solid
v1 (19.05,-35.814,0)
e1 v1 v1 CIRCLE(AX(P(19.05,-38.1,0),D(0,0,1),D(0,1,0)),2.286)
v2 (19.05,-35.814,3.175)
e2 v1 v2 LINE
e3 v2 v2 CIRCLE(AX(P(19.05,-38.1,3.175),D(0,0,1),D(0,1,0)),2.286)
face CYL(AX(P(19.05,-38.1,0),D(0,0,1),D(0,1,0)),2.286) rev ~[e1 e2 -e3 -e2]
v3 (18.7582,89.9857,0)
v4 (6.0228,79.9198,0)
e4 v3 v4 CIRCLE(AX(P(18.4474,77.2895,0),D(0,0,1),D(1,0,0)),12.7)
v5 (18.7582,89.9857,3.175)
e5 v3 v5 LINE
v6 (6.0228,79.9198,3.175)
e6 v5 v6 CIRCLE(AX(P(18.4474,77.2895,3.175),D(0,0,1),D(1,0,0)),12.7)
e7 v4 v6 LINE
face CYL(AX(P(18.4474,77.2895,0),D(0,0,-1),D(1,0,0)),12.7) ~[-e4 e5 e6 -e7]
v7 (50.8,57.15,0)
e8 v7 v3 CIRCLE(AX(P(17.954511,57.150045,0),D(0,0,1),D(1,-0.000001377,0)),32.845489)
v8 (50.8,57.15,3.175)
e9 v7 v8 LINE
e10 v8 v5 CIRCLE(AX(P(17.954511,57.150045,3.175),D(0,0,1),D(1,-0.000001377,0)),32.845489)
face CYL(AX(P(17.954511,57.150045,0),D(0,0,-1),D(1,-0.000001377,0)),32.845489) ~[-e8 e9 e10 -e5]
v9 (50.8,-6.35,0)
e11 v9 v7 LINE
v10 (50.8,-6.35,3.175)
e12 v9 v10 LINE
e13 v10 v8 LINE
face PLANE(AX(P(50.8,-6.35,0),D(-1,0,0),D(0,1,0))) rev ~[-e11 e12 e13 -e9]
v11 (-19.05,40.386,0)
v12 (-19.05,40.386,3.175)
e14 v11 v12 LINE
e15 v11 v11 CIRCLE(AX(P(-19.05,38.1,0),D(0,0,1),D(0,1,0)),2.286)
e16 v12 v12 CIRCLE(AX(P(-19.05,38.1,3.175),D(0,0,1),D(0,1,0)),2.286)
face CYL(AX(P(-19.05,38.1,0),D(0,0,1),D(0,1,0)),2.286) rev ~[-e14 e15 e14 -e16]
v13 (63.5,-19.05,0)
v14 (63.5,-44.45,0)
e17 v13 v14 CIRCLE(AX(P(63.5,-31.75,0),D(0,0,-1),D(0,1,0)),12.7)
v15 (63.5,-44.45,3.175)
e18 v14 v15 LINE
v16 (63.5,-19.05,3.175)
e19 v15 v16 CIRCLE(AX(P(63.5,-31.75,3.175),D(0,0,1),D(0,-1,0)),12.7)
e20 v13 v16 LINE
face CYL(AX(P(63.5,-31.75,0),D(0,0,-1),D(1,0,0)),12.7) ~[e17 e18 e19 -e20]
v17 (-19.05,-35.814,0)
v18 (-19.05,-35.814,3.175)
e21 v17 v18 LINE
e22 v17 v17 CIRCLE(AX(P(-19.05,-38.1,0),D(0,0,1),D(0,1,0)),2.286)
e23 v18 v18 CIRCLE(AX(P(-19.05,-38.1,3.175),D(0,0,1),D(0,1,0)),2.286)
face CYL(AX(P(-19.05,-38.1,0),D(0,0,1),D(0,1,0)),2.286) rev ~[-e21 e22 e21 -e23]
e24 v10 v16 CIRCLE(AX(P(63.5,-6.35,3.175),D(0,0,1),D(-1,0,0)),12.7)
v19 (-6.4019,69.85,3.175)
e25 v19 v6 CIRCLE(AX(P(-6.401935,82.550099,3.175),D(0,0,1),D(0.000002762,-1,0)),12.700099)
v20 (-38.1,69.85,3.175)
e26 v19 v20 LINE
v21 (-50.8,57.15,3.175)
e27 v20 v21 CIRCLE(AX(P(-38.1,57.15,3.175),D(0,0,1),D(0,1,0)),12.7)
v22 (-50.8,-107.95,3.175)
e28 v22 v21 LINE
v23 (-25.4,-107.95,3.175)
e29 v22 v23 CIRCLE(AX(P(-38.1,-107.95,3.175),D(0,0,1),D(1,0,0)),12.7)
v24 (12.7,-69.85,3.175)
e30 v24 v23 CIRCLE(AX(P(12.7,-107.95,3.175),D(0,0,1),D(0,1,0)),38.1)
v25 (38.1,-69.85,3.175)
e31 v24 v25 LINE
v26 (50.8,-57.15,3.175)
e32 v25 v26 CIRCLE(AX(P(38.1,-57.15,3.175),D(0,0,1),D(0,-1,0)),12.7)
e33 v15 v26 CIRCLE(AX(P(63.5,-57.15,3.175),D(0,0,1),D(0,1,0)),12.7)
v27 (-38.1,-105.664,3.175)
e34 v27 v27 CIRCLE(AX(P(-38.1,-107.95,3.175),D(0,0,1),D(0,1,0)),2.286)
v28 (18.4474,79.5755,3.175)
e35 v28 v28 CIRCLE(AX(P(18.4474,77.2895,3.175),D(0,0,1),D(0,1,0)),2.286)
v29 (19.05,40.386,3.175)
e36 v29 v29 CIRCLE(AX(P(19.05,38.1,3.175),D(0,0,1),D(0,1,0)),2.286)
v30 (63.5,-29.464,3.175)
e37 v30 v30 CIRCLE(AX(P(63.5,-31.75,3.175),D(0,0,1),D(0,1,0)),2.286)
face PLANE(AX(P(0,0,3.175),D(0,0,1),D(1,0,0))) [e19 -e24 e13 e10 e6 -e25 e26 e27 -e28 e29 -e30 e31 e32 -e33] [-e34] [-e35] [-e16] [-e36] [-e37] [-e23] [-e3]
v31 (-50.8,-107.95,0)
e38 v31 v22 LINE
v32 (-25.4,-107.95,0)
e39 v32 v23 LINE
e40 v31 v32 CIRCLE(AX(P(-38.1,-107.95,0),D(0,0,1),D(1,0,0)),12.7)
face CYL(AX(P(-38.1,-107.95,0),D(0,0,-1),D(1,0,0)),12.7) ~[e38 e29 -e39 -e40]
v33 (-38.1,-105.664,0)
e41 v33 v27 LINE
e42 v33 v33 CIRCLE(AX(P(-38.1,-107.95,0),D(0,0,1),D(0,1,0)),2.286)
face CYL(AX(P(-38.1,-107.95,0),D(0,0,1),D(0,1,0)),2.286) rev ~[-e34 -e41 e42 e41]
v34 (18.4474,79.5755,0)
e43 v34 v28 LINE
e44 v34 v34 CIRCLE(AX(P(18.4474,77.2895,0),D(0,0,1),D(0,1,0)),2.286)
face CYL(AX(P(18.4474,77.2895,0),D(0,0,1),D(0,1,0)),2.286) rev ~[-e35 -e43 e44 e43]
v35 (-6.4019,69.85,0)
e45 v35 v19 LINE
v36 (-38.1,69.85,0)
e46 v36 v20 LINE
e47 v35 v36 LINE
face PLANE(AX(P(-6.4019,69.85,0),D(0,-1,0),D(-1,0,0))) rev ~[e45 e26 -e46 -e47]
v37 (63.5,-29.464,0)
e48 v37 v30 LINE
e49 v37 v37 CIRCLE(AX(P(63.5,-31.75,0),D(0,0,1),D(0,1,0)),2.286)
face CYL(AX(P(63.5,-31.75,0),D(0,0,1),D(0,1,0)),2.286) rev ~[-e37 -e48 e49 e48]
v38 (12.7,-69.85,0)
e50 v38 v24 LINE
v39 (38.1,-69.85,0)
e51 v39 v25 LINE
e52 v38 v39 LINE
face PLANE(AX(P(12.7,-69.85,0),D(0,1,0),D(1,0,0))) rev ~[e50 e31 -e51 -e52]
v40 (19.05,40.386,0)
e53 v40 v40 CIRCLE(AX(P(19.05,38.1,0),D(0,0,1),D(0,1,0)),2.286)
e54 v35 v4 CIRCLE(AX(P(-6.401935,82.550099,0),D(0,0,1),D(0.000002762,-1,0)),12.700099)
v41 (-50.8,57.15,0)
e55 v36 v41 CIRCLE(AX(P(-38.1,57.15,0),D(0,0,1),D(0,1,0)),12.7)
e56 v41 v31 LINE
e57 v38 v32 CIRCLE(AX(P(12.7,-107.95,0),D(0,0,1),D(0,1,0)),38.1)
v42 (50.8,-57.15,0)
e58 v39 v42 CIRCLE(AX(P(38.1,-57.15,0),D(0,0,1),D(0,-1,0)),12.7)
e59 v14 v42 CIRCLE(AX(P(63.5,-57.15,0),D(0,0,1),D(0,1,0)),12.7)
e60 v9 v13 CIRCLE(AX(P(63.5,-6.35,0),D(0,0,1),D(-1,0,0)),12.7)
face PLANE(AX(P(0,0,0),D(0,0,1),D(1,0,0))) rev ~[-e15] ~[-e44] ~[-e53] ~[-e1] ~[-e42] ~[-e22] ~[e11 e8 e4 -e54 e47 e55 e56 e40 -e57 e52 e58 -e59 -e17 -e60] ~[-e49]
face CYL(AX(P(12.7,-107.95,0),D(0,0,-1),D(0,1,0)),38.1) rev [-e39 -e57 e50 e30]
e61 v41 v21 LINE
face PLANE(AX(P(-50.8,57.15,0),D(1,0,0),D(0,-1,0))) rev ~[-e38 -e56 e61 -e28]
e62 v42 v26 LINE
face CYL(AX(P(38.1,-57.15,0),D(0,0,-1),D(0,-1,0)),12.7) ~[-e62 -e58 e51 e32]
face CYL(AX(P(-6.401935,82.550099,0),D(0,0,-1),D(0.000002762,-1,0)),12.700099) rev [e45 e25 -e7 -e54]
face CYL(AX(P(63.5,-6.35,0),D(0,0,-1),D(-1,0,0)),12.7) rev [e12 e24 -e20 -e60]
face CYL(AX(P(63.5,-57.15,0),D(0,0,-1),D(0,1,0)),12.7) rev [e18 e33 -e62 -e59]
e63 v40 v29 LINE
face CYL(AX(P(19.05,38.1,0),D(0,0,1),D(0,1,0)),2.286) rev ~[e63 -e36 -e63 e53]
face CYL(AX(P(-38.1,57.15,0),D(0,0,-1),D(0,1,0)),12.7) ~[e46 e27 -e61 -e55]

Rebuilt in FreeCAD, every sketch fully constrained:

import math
import FreeCAD as App
import Part
import Sketcher

V = App.Vector
Q = App.Units.Quantity

doc = App.newDocument("Part")
body = doc.addObject("PartDesign::Body", "Body")

sketch1 = doc.addObject("Sketcher::SketchObject", "Sketch")
body.addObject(sketch1)
sketch1.AttachmentSupport = (doc.XY_Plane, [""])
sketch1.MapMode = "FlatFace"
sketch1.addGeometry(Part.LineSegment(V(-51, 57, 0), V(-51, -108, 0)), False)
sketch1.addGeometry(Part.ArcOfCircle(Part.Circle(V(-38, -108, 0), V(0, 0, 1), 13), math.radians(180), math.radians(360)), False)
sketch1.addGeometry(Part.ArcOfCircle(Part.Circle(V(13, -108, 0), V(0, 0, 1), 38), math.radians(90), math.radians(180)), False)
sketch1.addGeometry(Part.LineSegment(V(13, -70, 0), V(38, -70, 0)), False)
sketch1.addGeometry(Part.ArcOfCircle(Part.Circle(V(38, -57, 0), V(0, 0, 1), 13), math.radians(-90), math.radians(0)), False)
sketch1.addGeometry(Part.ArcOfCircle(Part.Circle(V(64, -57, 0), V(0, 0, 1), 13), math.radians(90), math.radians(180)), False)
sketch1.addGeometry(Part.ArcOfCircle(Part.Circle(V(64, -32, 0), V(0, 0, 1), 13), math.radians(-90), math.radians(90)), False)
sketch1.addGeometry(Part.ArcOfCircle(Part.Circle(V(64, -6, 0), V(0, 0, 1), 13), math.radians(180), math.radians(270)), False)
sketch1.addGeometry(Part.LineSegment(V(51, -6, 0), V(51, 57, 0)), False)
sketch1.addGeometry(Part.ArcOfCircle(Part.Circle(V(18, 57, 0), V(0, 0, 1), 33), math.radians(0), math.radians(89)), False)
sketch1.addGeometry(Part.ArcOfCircle(Part.Circle(V(18, 77, 0), V(0, 0, 1), 13), math.radians(89), math.radians(168)), False)
sketch1.addGeometry(Part.ArcOfCircle(Part.Circle(V(-6, 83, 0), V(0, 0, 1), 13), math.radians(-90), math.radians(-12)), False)
sketch1.addGeometry(Part.LineSegment(V(-6, 70, 0), V(-38, 70, 0)), False)
sketch1.addGeometry(Part.ArcOfCircle(Part.Circle(V(-38, 57, 0), V(0, 0, 1), 13), math.radians(90), math.radians(180)), False)
sketch1.addConstraint(Sketcher.Constraint("Tangent", 0, 2, 1, 1))
sketch1.addConstraint(Sketcher.Constraint("Tangent", 1, 2, 2, 2))
sketch1.addConstraint(Sketcher.Constraint("Tangent", 2, 1, 3, 1))
sketch1.addConstraint(Sketcher.Constraint("Tangent", 3, 2, 4, 1))
sketch1.addConstraint(Sketcher.Constraint("Tangent", 4, 2, 5, 2))
sketch1.addConstraint(Sketcher.Constraint("Tangent", 5, 1, 6, 1))
sketch1.addConstraint(Sketcher.Constraint("Tangent", 6, 2, 7, 2))
sketch1.addConstraint(Sketcher.Constraint("Tangent", 7, 1, 8, 1))
sketch1.addConstraint(Sketcher.Constraint("Tangent", 8, 2, 9, 1))
sketch1.addConstraint(Sketcher.Constraint("Tangent", 9, 2, 10, 1))
sketch1.addConstraint(Sketcher.Constraint("Tangent", 10, 2, 11, 2))
sketch1.addConstraint(Sketcher.Constraint("Tangent", 11, 1, 12, 1))
sketch1.addConstraint(Sketcher.Constraint("Tangent", 12, 2, 13, 1))
sketch1.addConstraint(Sketcher.Constraint("Tangent", 13, 2, 0, 1))
sketch1.addConstraint(Sketcher.Constraint("Vertical", 0))
sketch1.addConstraint(Sketcher.Constraint("Horizontal", 3))
sketch1.addConstraint(Sketcher.Constraint("Vertical", 8))
sketch1.addConstraint(Sketcher.Constraint("Horizontal", 12))
sketch1.addConstraint(Sketcher.Constraint("Equal", 1, 4))
sketch1.addConstraint(Sketcher.Constraint("Equal", 4, 5))
sketch1.addConstraint(Sketcher.Constraint("Equal", 5, 6))
sketch1.addConstraint(Sketcher.Constraint("Equal", 6, 7))
sketch1.addConstraint(Sketcher.Constraint("Equal", 7, 10))
sketch1.addConstraint(Sketcher.Constraint("Equal", 10, 11))
sketch1.addConstraint(Sketcher.Constraint("Equal", 11, 13))
sketch1.addConstraint(Sketcher.Constraint("Symmetric", 4, 3, 13, 3, -1, 1))
sketch1.addConstraint(Sketcher.Constraint("Symmetric", 8, 2, 13, 2, -2))
sketch1.addConstraint(Sketcher.Constraint("Horizontal", 1, 3, 2, 3))
sketch1.addConstraint(Sketcher.Constraint("Horizontal", 4, 3, 5, 3))
sketch1.addConstraint(Sketcher.Constraint("Vertical", 5, 3, 6, 3))
sketch1.addConstraint(Sketcher.Constraint("Radius", 1, Q("0.5 in")))
sketch1.addConstraint(Sketcher.Constraint("Radius", 2, Q("1.5 in")))
sketch1.addConstraint(Sketcher.Constraint("DistanceX", 3, 1, 3, 2, Q("1 in")))
sketch1.addConstraint(Sketcher.Constraint("DistanceY", 6, 3, -1, 1, Q("1.25 in")))
sketch1.addConstraint(Sketcher.Constraint("Radius", 9, Q("32.8456 mm")))
sketch1.addConstraint(Sketcher.Constraint("DistanceX", 12, 2, 12, 1, Q("31.698 mm")))
pad1 = doc.addObject("PartDesign::Pad", "Pad")
body.addObject(pad1)
pad1.Profile = sketch1
pad1.Length = Q("0.125 in")

sketch2 = doc.addObject("Sketcher::SketchObject", "Sketch001")
body.addObject(sketch2)
sketch2.AttachmentSupport = (doc.XY_Plane, [""])
sketch2.MapMode = "FlatFace"
sketch2.addGeometry(Part.Circle(V(-19.1, 38.1, 0), V(0, 0, 1), 2.3), False)
sketch2.addGeometry(Part.Circle(V(19.1, 38.1, 0), V(0, 0, 1), 2.3), False)
sketch2.addGeometry(Part.Circle(V(19.1, -38.1, 0), V(0, 0, 1), 2.3), False)
sketch2.addGeometry(Part.Circle(V(-19.1, -38.1, 0), V(0, 0, 1), 2.3), False)
sketch2.addGeometry(Part.Circle(V(-38.1, -108, 0), V(0, 0, 1), 2.3), False)
sketch2.addGeometry(Part.Circle(V(63.5, -31.8, 0), V(0, 0, 1), 2.3), False)
sketch2.addGeometry(Part.Circle(V(18.4, 77.3, 0), V(0, 0, 1), 2.3), False)
sketch2.addConstraint(Sketcher.Constraint("Equal", 0, 1))
sketch2.addConstraint(Sketcher.Constraint("Equal", 1, 2))
sketch2.addConstraint(Sketcher.Constraint("Equal", 2, 3))
sketch2.addConstraint(Sketcher.Constraint("Equal", 3, 4))
sketch2.addConstraint(Sketcher.Constraint("Equal", 4, 5))
sketch2.addConstraint(Sketcher.Constraint("Equal", 5, 6))
sketch2.addConstraint(Sketcher.Constraint("Symmetric", 0, 3, 2, 3, -1, 1))
sketch2.addConstraint(Sketcher.Constraint("Symmetric", 1, 3, 3, 3, -1, 1))
sketch2.addConstraint(Sketcher.Constraint("Symmetric", 0, 3, 1, 3, -2))
sketch2.addConstraint(Sketcher.Constraint("Diameter", 0, Q("0.18 in")))
sketch2.addConstraint(Sketcher.Constraint("DistanceY", 2, 3, 1, 3, Q("3 in")))
sketch2.addConstraint(Sketcher.Constraint("DistanceX", 4, 3, 5, 3, Q("4 in")))
sketch2.addConstraint(Sketcher.Constraint("DistanceY", 4, 3, 5, 3, Q("3 in")))
sketch2.addConstraint(Sketcher.Constraint("DistanceX", 4, 3, -1, 1, Q("1.5 in")))
sketch2.addConstraint(Sketcher.Constraint("DistanceX", 0, 3, 1, 3, Q("1.5 in")))
sketch2.addConstraint(Sketcher.Constraint("DistanceY", 4, 3, -1, 1, Q("4.25 in")))
sketch2.addConstraint(Sketcher.Constraint("DistanceY", -1, 1, 6, 3, Q("3.0429 in")))
sketch2.addConstraint(Sketcher.Constraint("DistanceX", -1, 1, 6, 3, Q("18.4474 mm")))
doc.recompute()
hole = doc.addObject("PartDesign::Hole", "Hole")
body.addObject(hole)
hole.Profile = sketch2
hole.ThreadType = "None"
hole.Diameter = Q("0.18 in")
hole.DepthType = "ThroughAll"
hole.Reversed = True

doc.recompute()
